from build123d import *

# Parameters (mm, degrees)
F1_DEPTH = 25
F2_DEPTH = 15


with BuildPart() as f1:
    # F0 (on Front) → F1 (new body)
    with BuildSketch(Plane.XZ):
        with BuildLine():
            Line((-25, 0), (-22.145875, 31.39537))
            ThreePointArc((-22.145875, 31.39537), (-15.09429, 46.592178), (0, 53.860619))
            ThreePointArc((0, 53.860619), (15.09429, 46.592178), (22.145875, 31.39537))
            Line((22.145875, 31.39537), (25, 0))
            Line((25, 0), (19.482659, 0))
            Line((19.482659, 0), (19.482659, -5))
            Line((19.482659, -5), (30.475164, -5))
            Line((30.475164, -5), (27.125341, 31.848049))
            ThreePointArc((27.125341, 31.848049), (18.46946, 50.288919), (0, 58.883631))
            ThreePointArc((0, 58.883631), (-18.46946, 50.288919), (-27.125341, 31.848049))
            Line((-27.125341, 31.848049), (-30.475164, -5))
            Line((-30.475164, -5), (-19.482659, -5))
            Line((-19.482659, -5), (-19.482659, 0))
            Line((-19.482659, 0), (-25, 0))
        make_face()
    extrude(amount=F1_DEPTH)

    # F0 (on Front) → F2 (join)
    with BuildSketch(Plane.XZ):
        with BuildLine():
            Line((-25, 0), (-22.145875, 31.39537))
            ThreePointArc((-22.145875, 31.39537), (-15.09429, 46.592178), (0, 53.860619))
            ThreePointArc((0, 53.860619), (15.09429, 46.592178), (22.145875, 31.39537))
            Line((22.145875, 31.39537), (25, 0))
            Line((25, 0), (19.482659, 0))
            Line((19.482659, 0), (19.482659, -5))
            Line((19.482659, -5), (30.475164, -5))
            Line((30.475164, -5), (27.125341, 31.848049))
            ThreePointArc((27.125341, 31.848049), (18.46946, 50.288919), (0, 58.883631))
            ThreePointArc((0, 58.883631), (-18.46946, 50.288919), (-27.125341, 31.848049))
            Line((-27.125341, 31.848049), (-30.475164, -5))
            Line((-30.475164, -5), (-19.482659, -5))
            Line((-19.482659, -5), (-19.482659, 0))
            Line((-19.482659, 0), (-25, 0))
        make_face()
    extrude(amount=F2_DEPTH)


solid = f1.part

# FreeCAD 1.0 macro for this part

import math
import FreeCAD as App
import Part
import Sketcher
from FreeCAD import Vector

doc = App.newDocument("Part")
body = doc.addObject("PartDesign::Body", "Body")

sketch1 = body.newObject("Sketcher::SketchObject", "Sketch")
sketch1.AttachmentSupport = (doc.getObject("XZ_Plane"), [""])
sketch1.MapMode = "FlatFace"
sketch1.addGeometry([
    Part.LineSegment(Vector(-25, 0, 0), Vector(-22.145875, 31.39537, 0)),
    Part.ArcOfCircle(Part.Circle(Vector(2.604125, 29.14537, 0), Vector(0, 0, 1), 24.852062), math.radians(96.014783), math.radians(174.805571)),
    Part.ArcOfCircle(Part.Circle(Vector(-2.604125, 29.14537, 0), Vector(0, 0, 1), 24.852062), math.radians(5.194429), math.radians(83.985217)),
    Part.LineSegment(Vector(22.145875, 31.39537, 0), Vector(25, 0, 0)),
    Part.LineSegment(Vector(25, 0, 0), Vector(19.482659, 0, 0)),
    Part.LineSegment(Vector(19.482659, 0, 0), Vector(19.482659, -5, 0)),
    Part.LineSegment(Vector(19.482659, -5, 0), Vector(30.475164, -5, 0)),
    Part.LineSegment(Vector(30.475164, -5, 0), Vector(27.125341, 31.848049, 0)),
    Part.ArcOfCircle(Part.Circle(Vector(-2.604124, 29.145371, 0), Vector(0, 0, 1), 29.852061), math.radians(5.194427), math.radians(84.995481)),
    Part.ArcOfCircle(Part.Circle(Vector(2.604124, 29.145371, 0), Vector(0, 0, 1), 29.852061), math.radians(95.004519), math.radians(174.805573)),
    Part.LineSegment(Vector(-27.125341, 31.848049, 0), Vector(-30.475164, -5, 0)),
    Part.LineSegment(Vector(-30.475164, -5, 0), Vector(-19.482659, -5, 0)),
    Part.LineSegment(Vector(-19.482659, -5, 0), Vector(-19.482659, 0, 0)),
    Part.LineSegment(Vector(-19.482659, 0, 0), Vector(-25, 0, 0)),
], False)
sketch1.addConstraint([
    Sketcher.Constraint("Tangent", 0, 2, 1, 2),
    Sketcher.Constraint("Coincident", 1, 1, 2, 2),
    Sketcher.Constraint("Tangent", 2, 1, 3, 1),
    Sketcher.Constraint("Coincident", 3, 2, 4, 1),
    Sketcher.Constraint("Coincident", 4, 2, 5, 1),
    Sketcher.Constraint("Coincident", 5, 2, 6, 1),
    Sketcher.Constraint("Coincident", 6, 2, 7, 1),
    Sketcher.Constraint("Tangent", 7, 2, 8, 1),
    Sketcher.Constraint("Coincident", 8, 2, 9, 1),
    Sketcher.Constraint("Tangent", 9, 2, 10, 1),
    Sketcher.Constraint("Coincident", 10, 2, 11, 1),
    Sketcher.Constraint("Coincident", 11, 2, 12, 1),
    Sketcher.Constraint("Coincident", 12, 2, 13, 1),
    Sketcher.Constraint("Coincident", 13, 2, 0, 1),
    Sketcher.Constraint("Horizontal", 4),
    Sketcher.Constraint("Vertical", 5),
    Sketcher.Constraint("Horizontal", 6),
    Sketcher.Constraint("Horizontal", 11),
    Sketcher.Constraint("Vertical", 12),
    Sketcher.Constraint("Horizontal", 13),
    Sketcher.Constraint("Coincident", 8, 3, 2, 3),
    Sketcher.Constraint("Coincident", 9, 3, 1, 3),
    Sketcher.Constraint("Equal", 1, 2),
    Sketcher.Constraint("Equal", 8, 9),
    Sketcher.Constraint("Symmetric", 4, 2, 12, 2, -1, 1),
    Sketcher.Constraint("Symmetric", 1, 3, 2, 3, -2),
    Sketcher.Constraint("Symmetric", 6, 2, 10, 2, -2),
    Sketcher.Constraint("Symmetric", 3, 2, 13, 2, -2),
    Sketcher.Constraint("Parallel", 3, 7),
    Sketcher.Constraint("DistanceY", 5, 2, 5, 1, 5.0),
    Sketcher.Constraint("Distance", 7, 37.0),
    Sketcher.Constraint("DistanceX", -1, 1, 3, 2, 25.0),
    Sketcher.Constraint("Radius", 8, 29.852061),
    Sketcher.Constraint("DistanceY", 2, 3, 0, 2, 2.25),
    Sketcher.Constraint("DistanceX", 0, 2, 9, 3, 24.749999),
    Sketcher.Constraint("DistanceX", 4, 2, 4, 1, 5.517341),
])
pad1 = body.newObject("PartDesign::Pad", "Pad")
pad1.Profile = sketch1
pad1.Length = 25

sketch2 = body.newObject("Sketcher::SketchObject", "Sketch001")
sketch2.AttachmentSupport = (doc.getObject("XZ_Plane"), [""])
sketch2.MapMode = "FlatFace"
sketch2.addGeometry([
    Part.LineSegment(Vector(-25, 0, 0), Vector(-22.145875, 31.39537, 0)),
    Part.ArcOfCircle(Part.Circle(Vector(2.604125, 29.14537, 0), Vector(0, 0, 1), 24.852062), math.radians(96.014783), math.radians(174.805571)),
    Part.ArcOfCircle(Part.Circle(Vector(-2.604125, 29.14537, 0), Vector(0, 0, 1), 24.852062), math.radians(5.194429), math.radians(83.985217)),
    Part.LineSegment(Vector(22.145875, 31.39537, 0), Vector(25, 0, 0)),
    Part.LineSegment(Vector(25, 0, 0), Vector(19.482659, 0, 0)),
    Part.LineSegment(Vector(19.482659, 0, 0), Vector(19.482659, -5, 0)),
    Part.LineSegment(Vector(19.482659, -5, 0), Vector(30.475164, -5, 0)),
    Part.LineSegment(Vector(30.475164, -5, 0), Vector(27.125341, 31.848049, 0)),
    Part.ArcOfCircle(Part.Circle(Vector(-2.604124, 29.145371, 0), Vector(0, 0, 1), 29.852061), math.radians(5.194427), math.radians(84.995481)),
    Part.ArcOfCircle(Part.Circle(Vector(2.604124, 29.145371, 0), Vector(0, 0, 1), 29.852061), math.radians(95.004519), math.radians(174.805573)),
    Part.LineSegment(Vector(-27.125341, 31.848049, 0), Vector(-30.475164, -5, 0)),
    Part.LineSegment(Vector(-30.475164, -5, 0), Vector(-19.482659, -5, 0)),
    Part.LineSegment(Vector(-19.482659, -5, 0), Vector(-19.482659, 0, 0)),
    Part.LineSegment(Vector(-19.482659, 0, 0), Vector(-25, 0, 0)),
], False)
sketch2.addConstraint([
    Sketcher.Constraint("Tangent", 0, 2, 1, 2),
    Sketcher.Constraint("Coincident", 1, 1, 2, 2),
    Sketcher.Constraint("Tangent", 2, 1, 3, 1),
    Sketcher.Constraint("Coincident", 3, 2, 4, 1),
    Sketcher.Constraint("Coincident", 4, 2, 5, 1),
    Sketcher.Constraint("Coincident", 5, 2, 6, 1),
    Sketcher.Constraint("Coincident", 6, 2, 7, 1),
    Sketcher.Constraint("Tangent", 7, 2, 8, 1),
    Sketcher.Constraint("Coincident", 8, 2, 9, 1),
    Sketcher.Constraint("Tangent", 9, 2, 10, 1),
    Sketcher.Constraint("Coincident", 10, 2, 11, 1),
    Sketcher.Constraint("Coincident", 11, 2, 12, 1),
    Sketcher.Constraint("Coincident", 12, 2, 13, 1),
    Sketcher.Constraint("Coincident", 13, 2, 0, 1),
    Sketcher.Constraint("Horizontal", 4),
    Sketcher.Constraint("Vertical", 5),
    Sketcher.Constraint("Horizontal", 6),
    Sketcher.Constraint("Horizontal", 11),
    Sketcher.Constraint("Vertical", 12),
    Sketcher.Constraint("Horizontal", 13),
    Sketcher.Constraint("Coincident", 8, 3, 2, 3),
    Sketcher.Constraint("Coincident", 9, 3, 1, 3),
    Sketcher.Constraint("Equal", 1, 2),
    Sketcher.Constraint("Equal", 8, 9),
    Sketcher.Constraint("Symmetric", 4, 2, 12, 2, -1, 1),
    Sketcher.Constraint("Symmetric", 1, 3, 2, 3, -2),
    Sketcher.Constraint("Symmetric", 6, 2, 10, 2, -2),
    Sketcher.Constraint("Symmetric", 3, 2, 13, 2, -2),
    Sketcher.Constraint("Parallel", 3, 7),
    Sketcher.Constraint("DistanceY", 5, 2, 5, 1, 5.0),
    Sketcher.Constraint("Distance", 7, 37.0),
    Sketcher.Constraint("DistanceX", -1, 1, 3, 2, 25.0),
    Sketcher.Constraint("Radius", 8, 29.852061),
    Sketcher.Constraint("DistanceY", 2, 3, 0, 2, 2.25),
    Sketcher.Constraint("DistanceX", 0, 2, 9, 3, 24.749999),
    Sketcher.Constraint("DistanceX", 4, 2, 4, 1, 5.517341),
])
pad2 = body.newObject("PartDesign::Pad", "Pad001")
pad2.Profile = sketch2
pad2.Length = 15

doc.recompute()
